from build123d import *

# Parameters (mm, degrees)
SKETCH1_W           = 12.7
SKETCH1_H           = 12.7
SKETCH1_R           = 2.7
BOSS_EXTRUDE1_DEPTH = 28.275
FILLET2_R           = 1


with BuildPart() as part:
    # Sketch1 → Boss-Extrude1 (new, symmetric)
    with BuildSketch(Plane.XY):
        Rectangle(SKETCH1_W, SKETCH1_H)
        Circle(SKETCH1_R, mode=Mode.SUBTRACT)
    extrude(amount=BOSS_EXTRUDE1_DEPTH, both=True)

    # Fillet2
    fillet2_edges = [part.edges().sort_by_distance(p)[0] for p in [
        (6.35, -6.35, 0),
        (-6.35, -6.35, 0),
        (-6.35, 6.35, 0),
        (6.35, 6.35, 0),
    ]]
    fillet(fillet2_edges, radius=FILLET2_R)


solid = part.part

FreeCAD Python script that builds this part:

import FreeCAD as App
import Part
import Sketcher
from FreeCAD import Vector


def edges_at(feature, points):
    """Names of the edges that pass closest to the given points."""
    edges = feature.Shape.Edges
    near = lambda p: min(range(len(edges)), key=lambda i: edges[i].distToShape(Part.Vertex(*p))[0])
    return sorted({f"Edge{near(p) + 1}" for p in points})


def add_polygon(sketch, points):
    """Adds a closed chain of lines whose ends are joined by coincident constraints."""
    first, n = sketch.GeometryCount, len(points)
    for a, b in zip(points, points[1:] + points[:1]):
        sketch.addGeometry(Part.LineSegment(App.Vector(*a, 0), App.Vector(*b, 0)), False)
    for i in range(n):
        sketch.addConstraint(Sketcher.Constraint("Coincident", first + i, 2, first + (i + 1) % n, 1))

doc = App.newDocument("Part")
params = doc.addObject("Spreadsheet::Sheet", "Params")
for row, (alias, value) in enumerate([
    ("sketch1_diameter", "5.4 mm"),
    ("sketch1_width", "12.7 mm"),
    ("pad1_length", "56.55 mm"),
    ("fillet_radius", "1 mm"),
], start=1):
    params.set(f"A{row}", alias)
    params.set(f"B{row}", "=" + value)
    params.setAlias(f"B{row}", alias)

body = doc.addObject("PartDesign::Body", "Body")

# Sketch on XY plane
sketch1 = body.newObject("Sketcher::SketchObject", "Sketch")
sketch1.AttachmentSupport = (doc.getObject("XY_Plane"), [""])
sketch1.MapMode = "FlatFace"
add_polygon(sketch1, [(-6.3, 6.3), (-6.3, -6.3), (6.3, -6.3), (6.3, 6.3)])  # lines 0-3
sketch1.addGeometry(Part.Circle(Vector(0, 0, 0), Vector(0, 0, 1), 2.7), False)  # 4
sketch1.addConstraint([
    Sketcher.Constraint("Vertical", 0),
    Sketcher.Constraint("Horizontal", 1),
    Sketcher.Constraint("Vertical", 2),
    Sketcher.Constraint("Horizontal", 3),
    Sketcher.Constraint("Coincident", 4, 3, -1, 1),
    Sketcher.Constraint("Symmetric", 0, 2, 2, 2, -1, 1),
    Sketcher.Constraint("Equal", 3, 0),
    Sketcher.Constraint("Diameter", 4, 5.4),
    Sketcher.Constraint("DistanceX", 1, 1, 1, 2, 12.7),
])
sketch1.setExpression("Constraints[11]", "Params.sketch1_diameter")
sketch1.setExpression("Constraints[12]", "Params.sketch1_width")
pad1 = body.newObject("PartDesign::Pad", "Pad")
pad1.Profile = sketch1
pad1.setExpression("Length", "Params.pad1_length")
pad1.Midplane = True
doc.recompute()

fillet = body.newObject("PartDesign::Fillet", "Fillet")
fillet.Base = (pad1, edges_at(pad1, [
    (6.35, -6.35, 0),
    (-6.35, -6.35, 0),
    (-6.35, 6.35, 0),
    (6.35, 6.35, 0),
]))
fillet.setExpression("Radius", "Params.fillet_radius")

doc.recompute()
